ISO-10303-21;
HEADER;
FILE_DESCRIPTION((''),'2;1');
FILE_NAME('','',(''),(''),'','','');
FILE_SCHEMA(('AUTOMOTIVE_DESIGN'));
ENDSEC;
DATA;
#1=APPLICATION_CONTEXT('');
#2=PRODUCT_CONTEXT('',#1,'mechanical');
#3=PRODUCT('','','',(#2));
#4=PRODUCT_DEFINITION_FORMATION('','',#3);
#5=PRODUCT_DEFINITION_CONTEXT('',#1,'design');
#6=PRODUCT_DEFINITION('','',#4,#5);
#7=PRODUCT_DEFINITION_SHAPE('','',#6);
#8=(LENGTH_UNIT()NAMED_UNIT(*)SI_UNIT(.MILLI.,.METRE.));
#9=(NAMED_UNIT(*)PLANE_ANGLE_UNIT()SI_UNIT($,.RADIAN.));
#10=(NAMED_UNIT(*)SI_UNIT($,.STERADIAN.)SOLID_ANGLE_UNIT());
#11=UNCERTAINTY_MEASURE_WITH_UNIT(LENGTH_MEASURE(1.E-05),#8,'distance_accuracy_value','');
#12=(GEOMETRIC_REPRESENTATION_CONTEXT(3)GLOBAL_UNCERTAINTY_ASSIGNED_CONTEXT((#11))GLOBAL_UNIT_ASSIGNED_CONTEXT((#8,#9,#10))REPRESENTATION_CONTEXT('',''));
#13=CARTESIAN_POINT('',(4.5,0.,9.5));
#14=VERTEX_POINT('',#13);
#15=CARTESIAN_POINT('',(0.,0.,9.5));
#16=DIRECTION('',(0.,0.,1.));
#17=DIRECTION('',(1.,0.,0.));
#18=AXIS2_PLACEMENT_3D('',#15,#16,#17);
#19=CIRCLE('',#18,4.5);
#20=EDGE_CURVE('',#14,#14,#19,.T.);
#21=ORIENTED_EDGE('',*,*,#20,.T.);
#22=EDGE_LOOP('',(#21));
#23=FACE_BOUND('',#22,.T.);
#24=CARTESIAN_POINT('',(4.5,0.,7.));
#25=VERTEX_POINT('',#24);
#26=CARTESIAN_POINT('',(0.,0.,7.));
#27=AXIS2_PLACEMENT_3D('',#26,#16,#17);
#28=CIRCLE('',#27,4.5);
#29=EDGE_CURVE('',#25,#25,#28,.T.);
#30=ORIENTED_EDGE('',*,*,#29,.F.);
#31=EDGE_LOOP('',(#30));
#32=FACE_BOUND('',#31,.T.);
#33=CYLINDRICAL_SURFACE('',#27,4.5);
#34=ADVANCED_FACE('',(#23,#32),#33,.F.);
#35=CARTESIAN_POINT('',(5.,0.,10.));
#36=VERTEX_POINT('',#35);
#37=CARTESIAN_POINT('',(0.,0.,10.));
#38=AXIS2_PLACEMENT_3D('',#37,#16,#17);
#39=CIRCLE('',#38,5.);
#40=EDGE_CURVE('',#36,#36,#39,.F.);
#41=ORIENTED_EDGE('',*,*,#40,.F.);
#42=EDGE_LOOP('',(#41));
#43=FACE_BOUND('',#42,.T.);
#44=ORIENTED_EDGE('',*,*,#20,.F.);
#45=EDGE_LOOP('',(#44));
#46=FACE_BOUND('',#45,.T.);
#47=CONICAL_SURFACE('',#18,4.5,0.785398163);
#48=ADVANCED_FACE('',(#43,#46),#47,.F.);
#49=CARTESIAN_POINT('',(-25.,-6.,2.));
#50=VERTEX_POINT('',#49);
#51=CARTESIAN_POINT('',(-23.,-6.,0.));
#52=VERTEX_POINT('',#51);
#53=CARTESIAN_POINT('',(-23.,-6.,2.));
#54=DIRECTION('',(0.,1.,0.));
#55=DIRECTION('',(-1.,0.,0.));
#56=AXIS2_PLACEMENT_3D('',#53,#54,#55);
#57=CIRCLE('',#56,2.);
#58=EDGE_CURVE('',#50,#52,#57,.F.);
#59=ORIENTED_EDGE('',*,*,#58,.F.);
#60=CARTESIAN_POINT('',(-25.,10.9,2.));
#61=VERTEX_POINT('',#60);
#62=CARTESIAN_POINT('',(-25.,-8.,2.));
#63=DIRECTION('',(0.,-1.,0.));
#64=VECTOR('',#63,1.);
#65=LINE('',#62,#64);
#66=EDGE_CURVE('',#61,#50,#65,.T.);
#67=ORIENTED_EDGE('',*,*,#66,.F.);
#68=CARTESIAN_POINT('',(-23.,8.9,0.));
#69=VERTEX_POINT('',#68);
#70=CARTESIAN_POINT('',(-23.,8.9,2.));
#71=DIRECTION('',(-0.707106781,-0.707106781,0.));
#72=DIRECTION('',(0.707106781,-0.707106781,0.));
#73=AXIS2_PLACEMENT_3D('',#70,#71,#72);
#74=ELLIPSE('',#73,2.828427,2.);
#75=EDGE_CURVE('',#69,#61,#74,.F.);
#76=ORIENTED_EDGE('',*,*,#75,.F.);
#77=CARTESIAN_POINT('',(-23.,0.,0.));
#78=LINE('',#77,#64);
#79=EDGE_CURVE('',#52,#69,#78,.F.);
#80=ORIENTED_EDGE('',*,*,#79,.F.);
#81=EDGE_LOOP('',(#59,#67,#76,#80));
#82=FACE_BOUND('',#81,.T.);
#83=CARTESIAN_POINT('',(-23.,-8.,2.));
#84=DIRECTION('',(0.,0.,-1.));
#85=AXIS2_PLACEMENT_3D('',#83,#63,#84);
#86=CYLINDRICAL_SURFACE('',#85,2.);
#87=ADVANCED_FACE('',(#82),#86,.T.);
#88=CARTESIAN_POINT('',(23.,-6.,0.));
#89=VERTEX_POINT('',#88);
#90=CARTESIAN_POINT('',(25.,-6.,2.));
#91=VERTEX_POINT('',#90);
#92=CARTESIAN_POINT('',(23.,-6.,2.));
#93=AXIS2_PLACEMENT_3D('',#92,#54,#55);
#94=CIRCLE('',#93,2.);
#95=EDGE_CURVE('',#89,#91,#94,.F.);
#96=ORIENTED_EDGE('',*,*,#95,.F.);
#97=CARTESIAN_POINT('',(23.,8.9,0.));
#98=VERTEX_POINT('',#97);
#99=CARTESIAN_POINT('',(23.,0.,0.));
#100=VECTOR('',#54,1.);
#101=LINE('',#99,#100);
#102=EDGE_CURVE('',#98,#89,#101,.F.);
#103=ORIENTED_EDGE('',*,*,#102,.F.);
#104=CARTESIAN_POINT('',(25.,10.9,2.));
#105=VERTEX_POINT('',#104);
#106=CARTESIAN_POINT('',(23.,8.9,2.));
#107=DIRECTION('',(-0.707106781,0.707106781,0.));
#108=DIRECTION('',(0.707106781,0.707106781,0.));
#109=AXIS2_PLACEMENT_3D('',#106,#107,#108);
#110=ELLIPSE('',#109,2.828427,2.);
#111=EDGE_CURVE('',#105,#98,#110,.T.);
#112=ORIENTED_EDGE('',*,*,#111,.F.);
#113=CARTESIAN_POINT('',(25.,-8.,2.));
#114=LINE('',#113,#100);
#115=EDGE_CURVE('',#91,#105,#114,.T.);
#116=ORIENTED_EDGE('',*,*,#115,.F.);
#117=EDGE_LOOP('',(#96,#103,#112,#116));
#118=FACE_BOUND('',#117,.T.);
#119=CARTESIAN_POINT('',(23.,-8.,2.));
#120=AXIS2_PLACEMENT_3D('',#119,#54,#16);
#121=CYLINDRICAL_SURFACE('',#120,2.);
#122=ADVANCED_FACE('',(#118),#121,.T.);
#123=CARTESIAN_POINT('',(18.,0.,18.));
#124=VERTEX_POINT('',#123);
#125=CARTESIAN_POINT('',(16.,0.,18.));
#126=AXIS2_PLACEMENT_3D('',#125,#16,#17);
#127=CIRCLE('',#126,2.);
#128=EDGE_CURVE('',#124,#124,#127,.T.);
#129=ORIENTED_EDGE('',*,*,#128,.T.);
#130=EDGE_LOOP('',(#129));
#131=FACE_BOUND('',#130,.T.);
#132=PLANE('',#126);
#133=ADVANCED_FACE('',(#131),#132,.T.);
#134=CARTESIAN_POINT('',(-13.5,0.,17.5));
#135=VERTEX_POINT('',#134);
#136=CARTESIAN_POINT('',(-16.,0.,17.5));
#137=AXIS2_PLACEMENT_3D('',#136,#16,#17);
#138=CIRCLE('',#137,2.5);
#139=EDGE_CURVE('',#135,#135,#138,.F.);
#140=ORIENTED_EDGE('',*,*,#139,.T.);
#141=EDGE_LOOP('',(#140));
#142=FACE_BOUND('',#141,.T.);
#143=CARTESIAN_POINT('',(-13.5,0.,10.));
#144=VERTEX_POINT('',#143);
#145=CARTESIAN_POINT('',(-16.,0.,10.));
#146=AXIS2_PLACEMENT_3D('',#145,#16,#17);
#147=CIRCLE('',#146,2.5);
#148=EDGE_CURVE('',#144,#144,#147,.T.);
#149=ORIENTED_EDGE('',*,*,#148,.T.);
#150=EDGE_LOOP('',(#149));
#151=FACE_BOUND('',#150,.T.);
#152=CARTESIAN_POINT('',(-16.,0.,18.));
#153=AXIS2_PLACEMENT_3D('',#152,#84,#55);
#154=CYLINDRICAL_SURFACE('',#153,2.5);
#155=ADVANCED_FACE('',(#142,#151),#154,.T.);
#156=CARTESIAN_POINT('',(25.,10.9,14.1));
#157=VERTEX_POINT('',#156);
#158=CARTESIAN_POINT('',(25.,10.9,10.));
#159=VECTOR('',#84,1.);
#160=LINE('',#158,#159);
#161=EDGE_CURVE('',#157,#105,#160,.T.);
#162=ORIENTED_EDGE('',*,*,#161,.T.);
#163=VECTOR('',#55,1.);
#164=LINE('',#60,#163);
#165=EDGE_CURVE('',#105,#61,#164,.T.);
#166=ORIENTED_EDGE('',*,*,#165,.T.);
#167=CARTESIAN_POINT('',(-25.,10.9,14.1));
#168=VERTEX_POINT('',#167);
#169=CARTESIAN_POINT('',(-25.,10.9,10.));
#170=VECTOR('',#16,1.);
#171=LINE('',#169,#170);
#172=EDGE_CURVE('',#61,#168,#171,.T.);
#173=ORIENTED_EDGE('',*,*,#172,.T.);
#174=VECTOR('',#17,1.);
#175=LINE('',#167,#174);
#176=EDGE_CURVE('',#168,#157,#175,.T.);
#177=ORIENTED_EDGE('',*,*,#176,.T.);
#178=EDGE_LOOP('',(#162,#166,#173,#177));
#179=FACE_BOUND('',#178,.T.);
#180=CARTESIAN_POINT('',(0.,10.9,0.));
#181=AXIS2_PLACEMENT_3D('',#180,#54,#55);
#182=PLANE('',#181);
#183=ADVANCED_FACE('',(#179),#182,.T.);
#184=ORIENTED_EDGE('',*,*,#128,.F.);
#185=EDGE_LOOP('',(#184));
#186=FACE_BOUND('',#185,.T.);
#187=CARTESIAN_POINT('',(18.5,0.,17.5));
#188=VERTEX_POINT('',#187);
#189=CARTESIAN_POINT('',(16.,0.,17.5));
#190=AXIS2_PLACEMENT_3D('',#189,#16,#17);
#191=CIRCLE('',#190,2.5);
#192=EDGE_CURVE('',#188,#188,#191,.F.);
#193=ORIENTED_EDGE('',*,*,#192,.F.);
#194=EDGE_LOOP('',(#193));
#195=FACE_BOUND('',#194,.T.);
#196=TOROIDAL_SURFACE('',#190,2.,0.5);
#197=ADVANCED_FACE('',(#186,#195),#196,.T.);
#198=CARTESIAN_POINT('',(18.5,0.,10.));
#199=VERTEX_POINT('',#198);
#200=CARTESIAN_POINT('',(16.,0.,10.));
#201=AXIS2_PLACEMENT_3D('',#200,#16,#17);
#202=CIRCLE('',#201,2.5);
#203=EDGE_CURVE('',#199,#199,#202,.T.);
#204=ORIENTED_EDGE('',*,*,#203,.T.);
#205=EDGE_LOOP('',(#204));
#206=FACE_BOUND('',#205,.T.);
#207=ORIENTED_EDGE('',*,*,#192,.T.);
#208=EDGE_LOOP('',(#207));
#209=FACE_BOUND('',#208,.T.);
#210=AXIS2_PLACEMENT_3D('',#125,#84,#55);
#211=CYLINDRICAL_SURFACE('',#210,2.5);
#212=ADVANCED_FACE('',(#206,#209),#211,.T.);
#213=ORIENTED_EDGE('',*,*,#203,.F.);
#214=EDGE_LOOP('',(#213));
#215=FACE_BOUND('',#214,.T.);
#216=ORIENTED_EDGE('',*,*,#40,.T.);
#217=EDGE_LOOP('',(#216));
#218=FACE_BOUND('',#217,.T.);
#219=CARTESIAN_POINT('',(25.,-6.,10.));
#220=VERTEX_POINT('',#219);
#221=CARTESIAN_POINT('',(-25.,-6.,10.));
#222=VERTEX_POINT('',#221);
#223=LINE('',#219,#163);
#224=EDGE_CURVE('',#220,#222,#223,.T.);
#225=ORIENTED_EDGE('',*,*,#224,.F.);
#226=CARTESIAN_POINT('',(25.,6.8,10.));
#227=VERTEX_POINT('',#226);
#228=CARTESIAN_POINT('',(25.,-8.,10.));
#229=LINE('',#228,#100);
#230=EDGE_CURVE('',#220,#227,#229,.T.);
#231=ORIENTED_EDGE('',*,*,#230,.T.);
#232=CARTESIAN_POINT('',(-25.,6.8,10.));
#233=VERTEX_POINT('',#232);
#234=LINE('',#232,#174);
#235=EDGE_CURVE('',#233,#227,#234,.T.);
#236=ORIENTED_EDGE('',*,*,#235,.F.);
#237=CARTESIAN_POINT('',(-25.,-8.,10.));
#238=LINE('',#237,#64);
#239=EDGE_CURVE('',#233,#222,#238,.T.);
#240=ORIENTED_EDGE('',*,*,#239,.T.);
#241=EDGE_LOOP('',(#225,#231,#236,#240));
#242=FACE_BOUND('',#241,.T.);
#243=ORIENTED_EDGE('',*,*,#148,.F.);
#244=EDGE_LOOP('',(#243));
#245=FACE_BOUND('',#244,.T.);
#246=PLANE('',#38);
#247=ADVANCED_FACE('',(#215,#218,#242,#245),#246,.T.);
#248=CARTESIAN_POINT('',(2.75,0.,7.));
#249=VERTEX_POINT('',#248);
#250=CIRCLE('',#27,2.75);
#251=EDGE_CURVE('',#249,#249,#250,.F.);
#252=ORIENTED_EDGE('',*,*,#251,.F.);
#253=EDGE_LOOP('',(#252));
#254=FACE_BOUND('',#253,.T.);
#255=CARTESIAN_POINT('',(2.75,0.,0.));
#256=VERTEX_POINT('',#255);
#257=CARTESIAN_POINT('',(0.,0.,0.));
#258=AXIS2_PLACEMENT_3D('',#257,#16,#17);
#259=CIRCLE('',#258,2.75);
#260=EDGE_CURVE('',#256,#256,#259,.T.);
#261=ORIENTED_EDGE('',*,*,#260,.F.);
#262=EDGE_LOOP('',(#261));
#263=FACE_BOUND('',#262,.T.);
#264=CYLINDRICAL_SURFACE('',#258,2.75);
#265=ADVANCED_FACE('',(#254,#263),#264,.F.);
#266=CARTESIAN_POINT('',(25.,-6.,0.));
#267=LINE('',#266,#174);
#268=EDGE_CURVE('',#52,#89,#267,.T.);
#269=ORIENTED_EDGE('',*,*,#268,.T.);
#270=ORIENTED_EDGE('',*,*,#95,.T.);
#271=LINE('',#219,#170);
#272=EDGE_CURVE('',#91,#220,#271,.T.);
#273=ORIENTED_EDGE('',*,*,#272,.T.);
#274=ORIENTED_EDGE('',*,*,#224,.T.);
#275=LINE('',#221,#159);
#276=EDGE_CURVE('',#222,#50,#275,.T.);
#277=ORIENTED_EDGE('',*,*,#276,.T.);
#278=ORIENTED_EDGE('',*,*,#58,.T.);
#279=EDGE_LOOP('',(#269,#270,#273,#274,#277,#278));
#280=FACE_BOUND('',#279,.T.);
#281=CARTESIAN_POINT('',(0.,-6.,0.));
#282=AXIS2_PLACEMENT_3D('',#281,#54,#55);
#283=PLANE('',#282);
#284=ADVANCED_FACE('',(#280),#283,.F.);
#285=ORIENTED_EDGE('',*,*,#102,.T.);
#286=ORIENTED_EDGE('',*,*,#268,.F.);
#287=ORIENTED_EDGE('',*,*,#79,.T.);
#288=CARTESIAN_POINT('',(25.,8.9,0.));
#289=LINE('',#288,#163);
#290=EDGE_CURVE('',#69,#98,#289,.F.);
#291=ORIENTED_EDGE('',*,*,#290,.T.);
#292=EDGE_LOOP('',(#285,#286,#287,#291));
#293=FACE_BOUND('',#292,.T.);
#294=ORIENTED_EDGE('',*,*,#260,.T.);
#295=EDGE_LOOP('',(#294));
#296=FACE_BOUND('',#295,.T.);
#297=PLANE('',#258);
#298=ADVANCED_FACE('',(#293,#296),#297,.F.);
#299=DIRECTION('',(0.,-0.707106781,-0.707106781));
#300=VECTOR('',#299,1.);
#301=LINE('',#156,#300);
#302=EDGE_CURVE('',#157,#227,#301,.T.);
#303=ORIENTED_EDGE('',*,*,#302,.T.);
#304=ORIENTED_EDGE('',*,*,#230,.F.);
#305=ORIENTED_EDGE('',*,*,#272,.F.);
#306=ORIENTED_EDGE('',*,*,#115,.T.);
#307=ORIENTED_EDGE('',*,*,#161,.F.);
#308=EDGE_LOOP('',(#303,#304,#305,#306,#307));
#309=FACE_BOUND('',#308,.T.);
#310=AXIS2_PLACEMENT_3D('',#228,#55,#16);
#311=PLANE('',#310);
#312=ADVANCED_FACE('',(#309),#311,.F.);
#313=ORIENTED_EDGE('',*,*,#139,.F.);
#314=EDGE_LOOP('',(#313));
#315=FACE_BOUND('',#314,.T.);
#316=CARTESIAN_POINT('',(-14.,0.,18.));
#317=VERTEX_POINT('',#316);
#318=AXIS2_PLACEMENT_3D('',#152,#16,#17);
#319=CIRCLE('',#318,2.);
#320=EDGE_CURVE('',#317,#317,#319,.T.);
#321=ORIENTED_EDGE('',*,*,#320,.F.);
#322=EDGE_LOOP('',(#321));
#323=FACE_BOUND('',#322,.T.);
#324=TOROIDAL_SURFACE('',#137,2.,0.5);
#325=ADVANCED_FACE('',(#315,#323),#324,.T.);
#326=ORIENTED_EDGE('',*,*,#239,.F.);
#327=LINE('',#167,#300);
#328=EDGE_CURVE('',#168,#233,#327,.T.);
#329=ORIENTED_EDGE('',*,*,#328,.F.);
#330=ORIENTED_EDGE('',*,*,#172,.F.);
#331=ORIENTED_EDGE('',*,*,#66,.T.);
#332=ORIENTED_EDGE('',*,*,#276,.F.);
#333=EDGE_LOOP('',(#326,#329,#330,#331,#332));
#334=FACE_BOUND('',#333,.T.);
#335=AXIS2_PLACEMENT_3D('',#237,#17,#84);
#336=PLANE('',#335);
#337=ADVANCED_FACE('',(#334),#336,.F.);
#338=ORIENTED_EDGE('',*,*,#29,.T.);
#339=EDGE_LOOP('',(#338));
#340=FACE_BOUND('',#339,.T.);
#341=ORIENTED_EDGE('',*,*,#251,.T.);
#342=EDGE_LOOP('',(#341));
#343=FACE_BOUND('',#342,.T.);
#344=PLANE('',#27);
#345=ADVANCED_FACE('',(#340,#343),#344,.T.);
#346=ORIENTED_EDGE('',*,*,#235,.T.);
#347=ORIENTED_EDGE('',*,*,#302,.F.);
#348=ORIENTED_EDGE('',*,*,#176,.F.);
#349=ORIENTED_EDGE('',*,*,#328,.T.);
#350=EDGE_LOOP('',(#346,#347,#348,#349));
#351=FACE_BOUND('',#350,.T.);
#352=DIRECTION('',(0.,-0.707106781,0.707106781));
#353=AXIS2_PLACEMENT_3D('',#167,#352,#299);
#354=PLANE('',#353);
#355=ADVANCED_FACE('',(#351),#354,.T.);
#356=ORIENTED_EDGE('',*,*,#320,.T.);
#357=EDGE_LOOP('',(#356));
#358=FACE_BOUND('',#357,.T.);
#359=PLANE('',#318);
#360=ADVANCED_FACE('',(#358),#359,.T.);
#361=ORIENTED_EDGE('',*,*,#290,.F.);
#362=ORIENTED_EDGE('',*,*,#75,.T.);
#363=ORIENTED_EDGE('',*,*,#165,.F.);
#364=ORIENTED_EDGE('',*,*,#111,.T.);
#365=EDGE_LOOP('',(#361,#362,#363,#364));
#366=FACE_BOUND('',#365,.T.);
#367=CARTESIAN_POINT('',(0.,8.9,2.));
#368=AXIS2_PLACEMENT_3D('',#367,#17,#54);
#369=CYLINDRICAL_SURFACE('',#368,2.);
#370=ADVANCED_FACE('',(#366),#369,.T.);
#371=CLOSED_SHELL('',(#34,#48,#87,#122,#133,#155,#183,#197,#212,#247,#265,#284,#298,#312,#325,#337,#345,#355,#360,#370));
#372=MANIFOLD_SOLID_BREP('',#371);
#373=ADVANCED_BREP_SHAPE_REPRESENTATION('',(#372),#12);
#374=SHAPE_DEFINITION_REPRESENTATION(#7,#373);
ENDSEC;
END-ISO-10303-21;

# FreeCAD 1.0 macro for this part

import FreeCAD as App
import Part
import Sketcher


def edges_at(feature, points):
    """Names of the edges that pass closest to the given points."""
    edges = feature.Shape.Edges
    near = lambda p: min(range(len(edges)), key=lambda i: edges[i].distToShape(Part.Vertex(*p))[0])
    return sorted({f"Edge{near(p) + 1}" for p in points})

doc = App.newDocument("Part")
body = doc.addObject("PartDesign::Body", "Body")

# Sketch on XY plane
sketch1 = doc.addObject("Sketcher::SketchObject", "Sketch")
body.addObject(sketch1)
sketch1.AttachmentSupport = (doc.XY_Plane, [""])
sketch1.MapMode = "FlatFace"
sketch1.addGeometry(Part.LineSegment(App.Vector(-25, 8, 0), App.Vector(-25, -8, 0)), False)
sketch1.addGeometry(Part.LineSegment(App.Vector(-25, -8, 0), App.Vector(25, -8, 0)), False)
sketch1.addGeometry(Part.LineSegment(App.Vector(25, -8, 0), App.Vector(25, 8, 0)), False)
sketch1.addGeometry(Part.LineSegment(App.Vector(25, 8, 0), App.Vector(-25, 8, 0)), False)
sketch1.addConstraint(Sketcher.Constraint("Coincident", 0, 2, 1, 1))
sketch1.addConstraint(Sketcher.Constraint("Coincident", 1, 2, 2, 1))
sketch1.addConstraint(Sketcher.Constraint("Coincident", 2, 2, 3, 1))
sketch1.addConstraint(Sketcher.Constraint("Coincident", 3, 2, 0, 1))
sketch1.addConstraint(Sketcher.Constraint("Vertical", 0))
sketch1.addConstraint(Sketcher.Constraint("Horizontal", 1))
sketch1.addConstraint(Sketcher.Constraint("Vertical", 2))
sketch1.addConstraint(Sketcher.Constraint("Horizontal", 3))
sketch1.addConstraint(Sketcher.Constraint("Symmetric", 0, 2, 2, 2, -1, 1))
sketch1.addConstraint(Sketcher.Constraint("DistanceX", 1, 1, 1, 2, 50.0))
sketch1.addConstraint(Sketcher.Constraint("DistanceY", 0, 2, 0, 1, 16.0))
pad1 = doc.addObject("PartDesign::Pad", "Pad")
body.addObject(pad1)
pad1.Profile = sketch1
pad1.Length = 10

# Sketch on XY plane
sketch2 = doc.addObject("Sketcher::SketchObject", "Sketch001")
body.addObject(sketch2)
sketch2.AttachmentSupport = (doc.XY_Plane, [""])
sketch2.MapMode = "FlatFace"
sketch2.AttachmentOffset = App.Placement(App.Vector(0, 0, 10), App.Rotation())
sketch2.addGeometry(Part.Circle(App.Vector(0, 0, 0), App.Vector(0, 0, 1), 2.8), False)
sketch2.addConstraint(Sketcher.Constraint("Coincident", 0, 3, -1, 1))
sketch2.addConstraint(Sketcher.Constraint("Diameter", 0, 5.5))
pocket1 = doc.addObject("PartDesign::Pocket", "Pocket")
body.addObject(pocket1)
pocket1.Profile = sketch2
pocket1.Type = "ThroughAll"

# Sketch on XY plane
sketch3 = doc.addObject("Sketcher::SketchObject", "Sketch002")
body.addObject(sketch3)
sketch3.AttachmentSupport = (doc.XY_Plane, [""])
sketch3.MapMode = "FlatFace"
sketch3.AttachmentOffset = App.Placement(App.Vector(0, 0, 10), App.Rotation())
sketch3.addGeometry(Part.Circle(App.Vector(-16, 0, 0), App.Vector(0, 0, 1), 2.5), False)
sketch3.addGeometry(Part.Circle(App.Vector(16, 0, 0), App.Vector(0, 0, 1), 2.5), False)
sketch3.addConstraint(Sketcher.Constraint("Equal", 0, 1))
sketch3.addConstraint(Sketcher.Constraint("Symmetric", 0, 3, 1, 3, -1, 1))
sketch3.addConstraint(Sketcher.Constraint("PointOnObject", 0, 3, -1))
sketch3.addConstraint(Sketcher.Constraint("Diameter", 0, 5.0))
sketch3.addConstraint(Sketcher.Constraint("DistanceX", 0, 3, -1, 1, 16.0))
pad2 = doc.addObject("PartDesign::Pad", "Pad001")
body.addObject(pad2)
pad2.Profile = sketch3
pad2.Length = 8
doc.recompute()

fillet = doc.addObject("PartDesign::Fillet", "Fillet")
body.addObject(fillet)
fillet.Base = (pad2, edges_at(pad2, [(-18.5, 0, 18), (13.5, 0, 18)]))
fillet.Radius = 0.5

# Sketch on XZ plane
sketch4 = doc.addObject("Sketcher::SketchObject", "Sketch003")
body.addObject(sketch4)
sketch4.AttachmentSupport = (doc.XZ_Plane, [""])
sketch4.MapMode = "FlatFace"
sketch4.AttachmentOffset = App.Placement(App.Vector(0, 0, 8), App.Rotation())
sketch4.addGeometry(Part.LineSegment(App.Vector(25, 0, 0), App.Vector(25, 10, 0)), False)
sketch4.addGeometry(Part.LineSegment(App.Vector(25, 10, 0), App.Vector(-25, 10, 0)), False)
sketch4.addGeometry(Part.LineSegment(App.Vector(-25, 10, 0), App.Vector(-25, 0, 0)), False)
sketch4.addGeometry(Part.LineSegment(App.Vector(-25, 0, 0), App.Vector(25, 0, 0)), False)
sketch4.addConstraint(Sketcher.Constraint("Coincident", 0, 2, 1, 1))
sketch4.addConstraint(Sketcher.Constraint("Coincident", 1, 2, 2, 1))
sketch4.addConstraint(Sketcher.Constraint("Coincident", 2, 2, 3, 1))
sketch4.addConstraint(Sketcher.Constraint("Coincident", 3, 2, 0, 1))
sketch4.addConstraint(Sketcher.Constraint("Vertical", 0))
sketch4.addConstraint(Sketcher.Constraint("Horizontal", 1))
sketch4.addConstraint(Sketcher.Constraint("Vertical", 2))
sketch4.addConstraint(Sketcher.Constraint("Horizontal", 3))
sketch4.addConstraint(Sketcher.Constraint("Symmetric", 2, 2, 3, 2, -1, 1))
sketch4.addConstraint(Sketcher.Constraint("DistanceX", 1, 2, 1, 1, 50.0))
sketch4.addConstraint(Sketcher.Constraint("DistanceY", 0, 1, 0, 2, 10.0))
pocket2 = doc.addObject("PartDesign::Pocket", "Pocket001")
body.addObject(pocket2)
pocket2.Profile = sketch4
pocket2.Length = 2

# Sketch on XZ plane
sketch5 = doc.addObject("Sketcher::SketchObject", "Sketch004")
body.addObject(sketch5)
sketch5.AttachmentSupport = (doc.XZ_Plane, [""])
sketch5.MapMode = "FlatFace"
sketch5.AttachmentOffset = App.Placement(App.Vector(0, 0, -8), App.Rotation())
sketch5.addGeometry(Part.LineSegment(App.Vector(-25, 0, 0), App.Vector(-25, 10, 0)), False)
sketch5.addGeometry(Part.LineSegment(App.Vector(-25, 10, 0), App.Vector(25, 10, 0)), False)
sketch5.addGeometry(Part.LineSegment(App.Vector(25, 10, 0), App.Vector(25, 0, 0)), False)
sketch5.addGeometry(Part.LineSegment(App.Vector(25, 0, 0), App.Vector(-25, 0, 0)), False)
sketch5.addConstraint(Sketcher.Constraint("Coincident", 0, 2, 1, 1))
sketch5.addConstraint(Sketcher.Constraint("Coincident", 1, 2, 2, 1))
sketch5.addConstraint(Sketcher.Constraint("Coincident", 2, 2, 3, 1))
sketch5.addConstraint(Sketcher.Constraint("Coincident", 3, 2, 0, 1))
sketch5.addConstraint(Sketcher.Constraint("Vertical", 0))
sketch5.addConstraint(Sketcher.Constraint("Horizontal", 1))
sketch5.addConstraint(Sketcher.Constraint("Vertical", 2))
sketch5.addConstraint(Sketcher.Constraint("Horizontal", 3))
sketch5.addConstraint(Sketcher.Constraint("Symmetric", 2, 2, 3, 2, -1, 1))
sketch5.addConstraint(Sketcher.Constraint("DistanceX", 1, 1, 1, 2, 50.0))
sketch5.addConstraint(Sketcher.Constraint("DistanceY", 0, 1, 0, 2, 10.0))
pad3 = doc.addObject("PartDesign::Pad", "Pad002")
body.addObject(pad3)
pad3.Profile = sketch5
pad3.Length = 2.9
pad3.Reversed = True

# Sketch on YZ plane
sketch6 = doc.addObject("Sketcher::SketchObject", "Sketch005")
body.addObject(sketch6)
sketch6.AttachmentSupport = (doc.YZ_Plane, [""])
sketch6.MapMode = "FlatFace"
sketch6.AttachmentOffset = App.Placement(App.Vector(0, 0, 25), App.Rotation())
sketch6.addGeometry(Part.LineSegment(App.Vector(10.9, 14.1, 0), App.Vector(6.8, 10, 0)), False)
sketch6.addGeometry(Part.LineSegment(App.Vector(6.8, 10, 0), App.Vector(10.9, 10, 0)), False)
sketch6.addGeometry(Part.LineSegment(App.Vector(10.9, 10, 0), App.Vector(10.9, 14.1, 0)), False)
sketch6.addConstraint(Sketcher.Constraint("Coincident", 0, 2, 1, 1))
sketch6.addConstraint(Sketcher.Constraint("Coincident", 1, 2, 2, 1))
sketch6.addConstraint(Sketcher.Constraint("Coincident", 2, 2, 0, 1))
sketch6.addConstraint(Sketcher.Constraint("Horizontal", 1))
sketch6.addConstraint(Sketcher.Constraint("Vertical", 2))
sketch6.addConstraint(Sketcher.Constraint("Equal", 1, 2))
sketch6.addConstraint(Sketcher.Constraint("DistanceX", 1, 1, 1, 2, 4.1))
sketch6.addConstraint(Sketcher.Constraint("DistanceY", -1, 1, 0, 2, 10.0))
sketch6.addConstraint(Sketcher.Constraint("DistanceX", -1, 1, 0, 2, 6.8))
pad4 = doc.addObject("PartDesign::Pad", "Pad003")
body.addObject(pad4)
pad4.Profile = sketch6
pad4.Length = 50
pad4.Reversed = True
doc.recompute()

fillet2 = doc.addObject("PartDesign::Fillet", "Fillet001")
body.addObject(fillet2)
fillet2.Base = (pad4, edges_at(pad4, [(25, 2.45, 0), (0, 10.9, 0), (-25, 2.45, 0)]))
fillet2.Radius = 2

# Sketch on XY plane
sketch7 = doc.addObject("Sketcher::SketchObject", "Sketch006")
body.addObject(sketch7)
sketch7.AttachmentSupport = (doc.XY_Plane, [""])
sketch7.MapMode = "FlatFace"
sketch7.AttachmentOffset = App.Placement(App.Vector(0, 0, 10), App.Rotation())
sketch7.addGeometry(Part.Circle(App.Vector(0, 0, 0), App.Vector(0, 0, 1), 4.5), False)
sketch7.addConstraint(Sketcher.Constraint("Coincident", 0, 3, -1, 1))
sketch7.addConstraint(Sketcher.Constraint("Diameter", 0, 9.0))
pocket3 = doc.addObject("PartDesign::Pocket", "Pocket002")
body.addObject(pocket3)
pocket3.Profile = sketch7
pocket3.Length = 3
doc.recompute()

chamfer = doc.addObject("PartDesign::Chamfer", "Chamfer")
body.addObject(chamfer)
chamfer.Base = (pocket3, edges_at(pocket3, [(-4.5, 0, 10)]))
chamfer.Size = 0.5

doc.recompute()
